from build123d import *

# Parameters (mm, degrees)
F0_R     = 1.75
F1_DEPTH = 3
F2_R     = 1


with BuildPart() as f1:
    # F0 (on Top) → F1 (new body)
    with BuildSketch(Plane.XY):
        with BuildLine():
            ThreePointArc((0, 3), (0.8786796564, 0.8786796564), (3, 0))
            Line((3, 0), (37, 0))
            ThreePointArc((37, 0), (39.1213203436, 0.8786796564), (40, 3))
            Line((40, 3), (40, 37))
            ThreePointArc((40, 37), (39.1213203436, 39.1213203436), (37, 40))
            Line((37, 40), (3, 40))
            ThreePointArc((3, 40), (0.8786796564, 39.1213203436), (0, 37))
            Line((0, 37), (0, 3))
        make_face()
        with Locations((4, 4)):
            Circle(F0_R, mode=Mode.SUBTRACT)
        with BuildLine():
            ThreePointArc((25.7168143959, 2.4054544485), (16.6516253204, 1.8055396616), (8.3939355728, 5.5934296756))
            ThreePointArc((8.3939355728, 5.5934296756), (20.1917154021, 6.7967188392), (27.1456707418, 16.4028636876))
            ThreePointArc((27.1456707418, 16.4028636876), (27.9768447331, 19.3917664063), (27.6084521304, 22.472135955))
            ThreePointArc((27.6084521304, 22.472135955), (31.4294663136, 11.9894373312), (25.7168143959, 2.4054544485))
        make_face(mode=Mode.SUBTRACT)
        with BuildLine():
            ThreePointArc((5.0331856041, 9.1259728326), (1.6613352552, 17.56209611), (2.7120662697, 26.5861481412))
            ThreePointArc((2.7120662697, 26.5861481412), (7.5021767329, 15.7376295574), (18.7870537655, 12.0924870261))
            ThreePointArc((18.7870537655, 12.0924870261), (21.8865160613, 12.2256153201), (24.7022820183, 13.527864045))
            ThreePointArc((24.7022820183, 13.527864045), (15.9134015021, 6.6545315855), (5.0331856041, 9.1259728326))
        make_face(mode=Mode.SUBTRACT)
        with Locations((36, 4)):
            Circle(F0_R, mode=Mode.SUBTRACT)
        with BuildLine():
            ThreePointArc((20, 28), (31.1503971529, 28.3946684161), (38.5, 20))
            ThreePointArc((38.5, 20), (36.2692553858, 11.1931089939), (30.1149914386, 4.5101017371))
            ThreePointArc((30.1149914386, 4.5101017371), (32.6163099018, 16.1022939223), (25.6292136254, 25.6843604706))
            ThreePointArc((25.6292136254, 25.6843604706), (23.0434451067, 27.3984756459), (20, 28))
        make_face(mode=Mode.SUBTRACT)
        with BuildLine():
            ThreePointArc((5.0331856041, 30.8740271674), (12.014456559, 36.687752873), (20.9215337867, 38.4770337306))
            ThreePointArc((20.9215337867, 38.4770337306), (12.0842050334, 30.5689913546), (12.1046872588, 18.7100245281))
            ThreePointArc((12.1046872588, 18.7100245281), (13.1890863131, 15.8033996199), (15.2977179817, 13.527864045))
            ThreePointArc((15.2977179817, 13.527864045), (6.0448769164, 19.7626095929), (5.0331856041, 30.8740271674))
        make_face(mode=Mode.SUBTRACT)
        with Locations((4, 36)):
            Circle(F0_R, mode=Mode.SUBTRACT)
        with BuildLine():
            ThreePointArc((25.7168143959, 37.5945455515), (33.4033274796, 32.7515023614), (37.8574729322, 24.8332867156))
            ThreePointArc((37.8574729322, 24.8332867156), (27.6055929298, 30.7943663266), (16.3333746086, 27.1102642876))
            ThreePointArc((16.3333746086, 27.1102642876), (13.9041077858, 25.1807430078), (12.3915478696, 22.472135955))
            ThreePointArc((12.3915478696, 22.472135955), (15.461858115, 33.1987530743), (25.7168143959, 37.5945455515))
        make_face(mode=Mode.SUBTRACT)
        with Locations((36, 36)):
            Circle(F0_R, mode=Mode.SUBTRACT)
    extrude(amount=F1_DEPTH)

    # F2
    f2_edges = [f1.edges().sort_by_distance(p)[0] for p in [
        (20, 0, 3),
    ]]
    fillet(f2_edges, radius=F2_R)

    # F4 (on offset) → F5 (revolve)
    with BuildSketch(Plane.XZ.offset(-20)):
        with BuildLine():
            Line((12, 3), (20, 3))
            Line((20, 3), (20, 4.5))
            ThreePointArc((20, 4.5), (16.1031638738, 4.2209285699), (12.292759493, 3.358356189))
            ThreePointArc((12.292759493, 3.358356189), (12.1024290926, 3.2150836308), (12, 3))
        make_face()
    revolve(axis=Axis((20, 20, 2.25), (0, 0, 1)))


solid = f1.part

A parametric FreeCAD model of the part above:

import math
import FreeCAD as App
import Part
import Sketcher


def edges_at(feature, points):
    """Names of the edges that pass closest to the given points."""
    edges = feature.Shape.Edges
    near = lambda p: min(range(len(edges)), key=lambda i: edges[i].distToShape(Part.Vertex(*p))[0])
    return sorted({f"Edge{near(p) + 1}" for p in points})

doc = App.newDocument("Part")
body = doc.addObject("PartDesign::Body", "Body")

sketch1 = body.newObject("Sketcher::SketchObject", "Sketch")
sketch1.AttachmentSupport = (doc.getObject("XY_Plane"), [""])
sketch1.MapMode = "FlatFace"
sketch1.addGeometry([
    Part.ArcOfCircle(Part.Circle(App.Vector(3, 3, 0), App.Vector(0, 0, 1), 3), math.radians(180), math.radians(270)),
    Part.LineSegment(App.Vector(3, 0, 0), App.Vector(37, 0, 0)),
    Part.ArcOfCircle(Part.Circle(App.Vector(37, 3, 0), App.Vector(0, 0, 1), 3), math.radians(-90), math.radians(0)),
    Part.LineSegment(App.Vector(40, 3, 0), App.Vector(40, 37, 0)),
    Part.ArcOfCircle(Part.Circle(App.Vector(37, 37, 0), App.Vector(0, 0, 1), 3), math.radians(0), math.radians(90)),
    Part.LineSegment(App.Vector(37, 40, 0), App.Vector(3, 40, 0)),
    Part.ArcOfCircle(Part.Circle(App.Vector(3, 37, 0), App.Vector(0, 0, 1), 3), math.radians(90), math.radians(180)),
    Part.LineSegment(App.Vector(0, 37, 0), App.Vector(0, 3, 0)),
    Part.Circle(App.Vector(4, 4, 0), App.Vector(0, 0, 1), 1.75),
    Part.ArcOfCircle(Part.Circle(App.Vector(18.486846, 13.209507, 0), App.Vector(0, 0, 1), 13), math.radians(-56.20994), math.radians(45.439498)),
    Part.ArcOfCircle(Part.Circle(App.Vector(20, 20, 0), App.Vector(0, 0, 1), 18.5), math.radians(-128.855235), math.radians(-72)),
    Part.ArcOfCircle(Part.Circle(App.Vector(12.950201, 19.358983, 0), App.Vector(0, 0, 1), 14.5), math.radians(-108.314046), math.radians(-11.763373)),
    Part.ArcOfCircle(Part.Circle(App.Vector(20, 20, 0), App.Vector(0, 0, 1), 8), math.radians(-26.72072), math.radians(18)),
    Part.ArcOfCircle(Part.Circle(App.Vector(13.074267, 19.340718, 0), App.Vector(0, 0, 1), 13), math.radians(-128.20994), math.radians(-26.560502)),
    Part.ArcOfCircle(Part.Circle(App.Vector(20, 20, 0), App.Vector(0, 0, 1), 18.5), math.radians(159.144765), math.radians(216)),
    Part.ArcOfCircle(Part.Circle(App.Vector(17.211848, 26.506672, 0), App.Vector(0, 0, 1), 14.5), math.radians(179.685954), math.radians(276.236627)),
    Part.ArcOfCircle(Part.Circle(App.Vector(20, 20, 0), App.Vector(0, 0, 1), 8), math.radians(-98.72072), math.radians(-54)),
    Part.Circle(App.Vector(36, 4, 0), App.Vector(0, 0, 1), 1.75),
    Part.ArcOfCircle(Part.Circle(App.Vector(20, 20, 0), App.Vector(0, 0, 1), 8), math.radians(45.27928), math.radians(90)),
    Part.ArcOfCircle(Part.Circle(App.Vector(25.990552, 16.462527, 0), App.Vector(0, 0, 1), 13), math.radians(15.79006), math.radians(117.439498)),
    Part.ArcOfCircle(Part.Circle(App.Vector(20, 20, 0), App.Vector(0, 0, 1), 18.5), math.radians(-56.855235), math.radians(0)),
    Part.ArcOfCircle(Part.Circle(App.Vector(18.431136, 13.097157, 0), App.Vector(0, 0, 1), 14.5), math.radians(-36.314046), math.radians(60.236627)),
    Part.ArcOfCircle(Part.Circle(App.Vector(17.232816, 26.383034, 0), App.Vector(0, 0, 1), 13), math.radians(159.79006), math.radians(261.439498)),
    Part.ArcOfCircle(Part.Circle(App.Vector(20, 20, 0), App.Vector(0, 0, 1), 18.5), math.radians(87.144765), math.radians(144)),
    Part.ArcOfCircle(Part.Circle(App.Vector(25.326627, 24.662362, 0), App.Vector(0, 0, 1), 14.5), math.radians(107.685954), math.radians(204.236627)),
    Part.ArcOfCircle(Part.Circle(App.Vector(20, 20, 0), App.Vector(0, 0, 1), 8), math.radians(-170.72072), math.radians(-126)),
    Part.Circle(App.Vector(4, 36, 0), App.Vector(0, 0, 1), 1.75),
    Part.ArcOfCircle(Part.Circle(App.Vector(25.215519, 24.604214, 0), App.Vector(0, 0, 1), 13), math.radians(87.79006), math.radians(189.439498)),
    Part.ArcOfCircle(Part.Circle(App.Vector(20, 20, 0), App.Vector(0, 0, 1), 18.5), math.radians(15.144765), math.radians(72)),
    Part.ArcOfCircle(Part.Circle(App.Vector(26.080188, 16.374826, 0), App.Vector(0, 0, 1), 14.5), math.radians(35.685954), math.radians(132.236627)),
    Part.ArcOfCircle(Part.Circle(App.Vector(20, 20, 0), App.Vector(0, 0, 1), 8), math.radians(117.27928), math.radians(162)),
    Part.Circle(App.Vector(36, 36, 0), App.Vector(0, 0, 1), 1.75),
], False)
sketch1.addConstraint([
    Sketcher.Constraint("Tangent", 0, 2, 1, 1),
    Sketcher.Constraint("Tangent", 1, 2, 2, 1),
    Sketcher.Constraint("Tangent", 2, 2, 3, 1),
    Sketcher.Constraint("Tangent", 3, 2, 4, 1),
    Sketcher.Constraint("Tangent", 4, 2, 5, 1),
    Sketcher.Constraint("Tangent", 5, 2, 6, 1),
    Sketcher.Constraint("Tangent", 6, 2, 7, 1),
    Sketcher.Constraint("Tangent", 7, 2, 0, 1),
    Sketcher.Constraint("Coincident", 9, 1, 10, 2),
    Sketcher.Constraint("Coincident", 10, 1, 11, 1),
    Sketcher.Constraint("Coincident", 11, 2, 12, 1),
    Sketcher.Constraint("Coincident", 12, 2, 9, 2),
    Sketcher.Constraint("Coincident", 13, 1, 14, 2),
    Sketcher.Constraint("Coincident", 14, 1, 15, 1),
    Sketcher.Constraint("Coincident", 15, 2, 16, 1),
    Sketcher.Constraint("Coincident", 16, 2, 13, 2),
    Sketcher.Constraint("Coincident", 18, 2, 19, 2),
    Sketcher.Constraint("Coincident", 19, 1, 20, 2),
    Sketcher.Constraint("Coincident", 20, 1, 21, 1),
    Sketcher.Constraint("Coincident", 21, 2, 18, 1),
    Sketcher.Constraint("Coincident", 22, 1, 23, 2),
    Sketcher.Constraint("Coincident", 23, 1, 24, 1),
    Sketcher.Constraint("Coincident", 24, 2, 25, 1),
    Sketcher.Constraint("Coincident", 25, 2, 22, 2),
    Sketcher.Constraint("Coincident", 27, 1, 28, 2),
    Sketcher.Constraint("Coincident", 28, 1, 29, 1),
    Sketcher.Constraint("Coincident", 29, 2, 30, 1),
    Sketcher.Constraint("Coincident", 30, 2, 27, 2),
    Sketcher.Constraint("Horizontal", 1),
    Sketcher.Constraint("Vertical", 3),
    Sketcher.Constraint("Horizontal", 5),
    Sketcher.Constraint("Vertical", 7),
    Sketcher.Constraint("Coincident", 12, 3, 10, 3),
    Sketcher.Constraint("Coincident", 14, 3, 10, 3),
    Sketcher.Constraint("Coincident", 16, 3, 10, 3),
    Sketcher.Constraint("Coincident", 18, 3, 10, 3),
    Sketcher.Constraint("Coincident", 20, 3, 10, 3),
    Sketcher.Constraint("Coincident", 23, 3, 10, 3),
    Sketcher.Constraint("Coincident", 25, 3, 10, 3),
    Sketcher.Constraint("Coincident", 28, 3, 10, 3),
    Sketcher.Constraint("Coincident", 30, 3, 10, 3),
    Sketcher.Constraint("Equal", 0, 2),
    Sketcher.Constraint("Equal", 2, 4),
    Sketcher.Constraint("Equal", 4, 6),
    Sketcher.Constraint("Equal", 9, 13),
    Sketcher.Constraint("Equal", 10, 14),
    Sketcher.Constraint("Equal", 11, 15),
    Sketcher.Constraint("Equal", 12, 16),
    Sketcher.Constraint("Equal", 8, 17),
    Sketcher.Constraint("Equal", 16, 18),
    Sketcher.Constraint("Equal", 13, 19),
    Sketcher.Constraint("Equal", 14, 20),
    Sketcher.Constraint("Equal", 15, 21),
    Sketcher.Constraint("Equal", 19, 22),
    Sketcher.Constraint("Equal", 20, 23),
    Sketcher.Constraint("Equal", 21, 24),
    Sketcher.Constraint("Equal", 18, 25),
    Sketcher.Constraint("Equal", 17, 26),
    Sketcher.Constraint("Equal", 22, 27),
    Sketcher.Constraint("Equal", 23, 28),
    Sketcher.Constraint("Equal", 24, 29),
    Sketcher.Constraint("Equal", 25, 30),
    Sketcher.Constraint("Equal", 26, 31),
    Sketcher.Constraint("PointOnObject", 0, 2, -1),
    Sketcher.Constraint("PointOnObject", 6, 2, -2),
    Sketcher.Constraint("Horizontal", 8, 3, 17, 3),
    Sketcher.Constraint("Horizontal", 26, 3, 31, 3),
    Sketcher.Constraint("Horizontal", 30, 3, 19, 1),
    Sketcher.Constraint("Horizontal", 16, 2, 25, 2),
    Sketcher.Constraint("Horizontal", 12, 2, 30, 2),
    Sketcher.Constraint("Vertical", 8, 3, 26, 3),
    Sketcher.Constraint("Vertical", 17, 3, 31, 3),
    Sketcher.Constraint("Vertical", 30, 3, 18, 2),
    Sketcher.Constraint("Vertical", 13, 1, 22, 1),
    Sketcher.Constraint("Vertical", 9, 1, 27, 1),
    Sketcher.Constraint("Equal", 5, 3),
    Sketcher.Constraint("Radius", 0, 3.0),
    Sketcher.Constraint("Radius", 9, 13.0),
    Sketcher.Constraint("Radius", 12, 8.0),
    Sketcher.Constraint("Diameter", 8, 3.5),
    Sketcher.Constraint("Radius", 10, 18.5),
    Sketcher.Constraint("Radius", 11, 14.5),
    Sketcher.Constraint("DistanceX", 1, 1, 1, 2, 34.0),
    Sketcher.Constraint("DistanceX", -1, 1, 8, 3, 4.0),
    Sketcher.Constraint("DistanceY", -1, 1, 8, 3, 4.0),
    Sketcher.Constraint("DistanceX", -1, 1, 10, 3, 20.0),
    Sketcher.Constraint("DistanceY", -1, 1, 10, 3, 20.0),
    Sketcher.Constraint("DistanceX", -1, 1, 17, 3, 36.0),
    Sketcher.Constraint("DistanceY", -1, 1, 26, 3, 36.0),
    Sketcher.Constraint("DistanceY", 16, 2, 11, 2, 2.875),
    Sketcher.Constraint("DistanceY", 24, 3, 21, 2, 1.021999),
    Sketcher.Constraint("DistanceY", 22, 3, 23, 1, 12.094),
    Sketcher.Constraint("DistanceX", -1, 1, 11, 3, 12.950201),
    Sketcher.Constraint("DistanceY", -1, 1, 20, 1, 4.510102),
    Sketcher.Constraint("DistanceY", 29, 3, 19, 3, 0.087701),
    Sketcher.Constraint("DistanceX", 10, 1, 21, 3, 10.037201),
    Sketcher.Constraint("DistanceX", 19, 3, 12, 2, 1.6179),
    Sketcher.Constraint("DistanceX", 14, 1, 13, 3, 10.362201),
    Sketcher.Constraint("DistanceY", 30, 2, 22, 3, 3.910898),
    Sketcher.Constraint("DistanceX", -1, 1, 15, 3, 17.211848),
    Sketcher.Constraint("DistanceY", -1, 1, 15, 3, 26.506672),
    Sketcher.Constraint("DistanceX", -1, 1, 27, 3, 25.215519),
    Sketcher.Constraint("DistanceX", 12, 2, 28, 1, 10.249021),
])
pad1 = body.newObject("PartDesign::Pad", "Pad")
pad1.Profile = sketch1
pad1.Length = 3
doc.recompute()

fillet = body.newObject("PartDesign::Fillet", "Fillet")
fillet.Base = (pad1, edges_at(pad1, [(20, 0, 3)]))
fillet.Radius = 1

sketch2 = body.newObject("Sketcher::SketchObject", "Sketch001")
sketch2.AttachmentSupport = (doc.getObject("XZ_Plane"), [""])
sketch2.MapMode = "FlatFace"
sketch2.AttachmentOffset = App.Placement(App.Vector(0, 0, -20), App.Rotation())
sketch2.addGeometry([
    Part.LineSegment(App.Vector(12, 3, 0), App.Vector(20, 3, 0)),
    Part.LineSegment(App.Vector(20, 3, 0), App.Vector(20, 4.5, 0)),
    Part.ArcOfCircle(Part.Circle(App.Vector(19.894656, -21.375443, 0), App.Vector(0, 0, 1), 25.875658), math.radians(89.766738), math.radians(107.084732)),
    Part.ArcOfCircle(Part.Circle(App.Vector(12.489641, 2.89875, 0), App.Vector(0, 0, 1), 0.5), math.radians(113.188872), math.radians(168.316841)),
], False)
sketch2.addGeometry(Part.LineSegment(App.Vector(20, -21.375443, 0), App.Vector(20, 4.5, 0)), True)
sketch2.addConstraint([
    Sketcher.Constraint("Coincident", 0, 2, 1, 1),
    Sketcher.Constraint("Coincident", 1, 2, 2, 1),
    Sketcher.Constraint("Coincident", 2, 2, 3, 1),
    Sketcher.Constraint("Coincident", 3, 2, 0, 1),
    Sketcher.Constraint("Horizontal", 0),
    Sketcher.Constraint("Vertical", 1),
    Sketcher.Constraint("Vertical", 4),
    Sketcher.Constraint("Coincident", 4, 2, 1, 2),
    Sketcher.Constraint("Horizontal", 2, 3, 4, 1),
    Sketcher.Constraint("Radius", 3, 0.5),
    Sketcher.Constraint("DistanceX", 0, 1, 0, 2, 8.0),
    Sketcher.Constraint("DistanceY", 1, 1, 1, 2, 1.5),
    Sketcher.Constraint("DistanceX", -1, 1, 0, 2, 20.0),
    Sketcher.Constraint("DistanceY", -1, 1, 0, 2, 3.0),
    Sketcher.Constraint("Radius", 2, 25.875658),
    Sketcher.Constraint("DistanceY", 2, 3, 2, 2, 24.7338),
    Sketcher.Constraint("DistanceX", -1, 1, 3, 3, 12.489641),
])
revolution = body.newObject("PartDesign::Revolution", "Revolution")
revolution.Profile = sketch2
revolution.ReferenceAxis = (sketch2, ["Axis0"])
revolution.Angle = 360

doc.recompute()
